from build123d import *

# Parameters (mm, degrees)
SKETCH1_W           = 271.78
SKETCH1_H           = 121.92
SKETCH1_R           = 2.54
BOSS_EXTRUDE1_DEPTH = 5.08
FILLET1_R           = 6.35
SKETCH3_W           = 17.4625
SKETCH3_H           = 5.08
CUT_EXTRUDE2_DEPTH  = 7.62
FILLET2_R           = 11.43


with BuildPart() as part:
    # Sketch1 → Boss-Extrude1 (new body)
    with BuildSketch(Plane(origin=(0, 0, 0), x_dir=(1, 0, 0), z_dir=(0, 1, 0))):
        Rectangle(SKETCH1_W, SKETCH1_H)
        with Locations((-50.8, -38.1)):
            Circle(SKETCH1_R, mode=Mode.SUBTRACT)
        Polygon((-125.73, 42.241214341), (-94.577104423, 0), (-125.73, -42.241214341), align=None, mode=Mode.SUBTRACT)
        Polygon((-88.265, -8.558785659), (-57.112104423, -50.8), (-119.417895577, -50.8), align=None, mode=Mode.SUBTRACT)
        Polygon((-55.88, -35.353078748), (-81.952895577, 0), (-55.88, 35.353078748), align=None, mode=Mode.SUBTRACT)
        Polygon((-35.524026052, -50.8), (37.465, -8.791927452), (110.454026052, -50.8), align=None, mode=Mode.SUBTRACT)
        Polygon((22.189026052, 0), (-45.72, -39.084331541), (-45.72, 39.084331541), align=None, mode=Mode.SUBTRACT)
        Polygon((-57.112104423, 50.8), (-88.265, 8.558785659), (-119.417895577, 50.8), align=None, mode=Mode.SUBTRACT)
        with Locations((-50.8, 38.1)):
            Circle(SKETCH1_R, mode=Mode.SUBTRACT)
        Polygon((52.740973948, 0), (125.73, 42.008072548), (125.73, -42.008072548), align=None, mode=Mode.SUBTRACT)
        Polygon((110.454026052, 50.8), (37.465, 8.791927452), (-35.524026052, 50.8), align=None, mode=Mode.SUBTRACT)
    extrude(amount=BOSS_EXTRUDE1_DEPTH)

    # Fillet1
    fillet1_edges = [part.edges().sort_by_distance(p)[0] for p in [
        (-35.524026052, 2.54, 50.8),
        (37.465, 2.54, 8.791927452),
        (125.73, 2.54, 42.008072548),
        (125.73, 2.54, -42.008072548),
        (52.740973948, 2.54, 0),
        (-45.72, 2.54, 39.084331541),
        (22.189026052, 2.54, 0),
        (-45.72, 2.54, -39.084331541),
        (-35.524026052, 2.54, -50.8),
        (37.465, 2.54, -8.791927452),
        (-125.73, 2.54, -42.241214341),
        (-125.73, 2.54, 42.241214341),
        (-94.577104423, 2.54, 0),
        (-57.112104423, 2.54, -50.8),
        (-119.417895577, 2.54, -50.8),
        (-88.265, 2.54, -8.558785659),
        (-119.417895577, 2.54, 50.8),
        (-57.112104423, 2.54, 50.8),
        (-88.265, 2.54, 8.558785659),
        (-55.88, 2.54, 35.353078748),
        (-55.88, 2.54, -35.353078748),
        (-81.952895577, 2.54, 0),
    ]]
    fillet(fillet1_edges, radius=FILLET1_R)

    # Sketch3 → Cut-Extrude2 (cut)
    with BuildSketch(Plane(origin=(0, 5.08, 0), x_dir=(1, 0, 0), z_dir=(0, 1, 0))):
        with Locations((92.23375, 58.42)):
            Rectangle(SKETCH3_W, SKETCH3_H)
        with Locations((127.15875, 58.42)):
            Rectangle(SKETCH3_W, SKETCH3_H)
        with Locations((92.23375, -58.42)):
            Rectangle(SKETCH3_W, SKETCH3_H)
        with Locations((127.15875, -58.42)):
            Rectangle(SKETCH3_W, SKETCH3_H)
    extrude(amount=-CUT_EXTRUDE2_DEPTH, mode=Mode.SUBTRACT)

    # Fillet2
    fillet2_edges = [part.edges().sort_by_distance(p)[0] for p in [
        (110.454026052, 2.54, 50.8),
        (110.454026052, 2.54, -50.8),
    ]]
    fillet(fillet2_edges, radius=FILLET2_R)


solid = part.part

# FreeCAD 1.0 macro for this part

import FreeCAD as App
import Part
import Sketcher

V = App.Vector
Q = App.Units.Quantity


def edges_at(feature, points):
    """Names of the edges that pass closest to the given points."""
    edges = feature.Shape.Edges
    near = lambda p: min(range(len(edges)), key=lambda i: edges[i].distToShape(Part.Vertex(*p))[0])
    return sorted({f"Edge{near(p) + 1}" for p in points})


def add_polygon(sketch, points):
    """Adds a closed chain of lines whose ends are joined by coincident constraints."""
    first, n = sketch.GeometryCount, len(points)
    for a, b in zip(points, points[1:] + points[:1]):
        sketch.addGeometry(Part.LineSegment(App.Vector(*a, 0), App.Vector(*b, 0)), False)
    for i in range(n):
        sketch.addConstraint(Sketcher.Constraint("Coincident", first + i, 2, first + (i + 1) % n, 1))

doc = App.newDocument("Part")
body = doc.addObject("PartDesign::Body", "Body")

sketch1 = doc.addObject("Sketcher::SketchObject", "Sketch")
body.addObject(sketch1)
sketch1.AttachmentSupport = (doc.XZ_Plane, [""])
sketch1.MapMode = "FlatFace"
add_polygon(sketch1, [(-135.9, -61), (-135.9, 61), (135.9, 61), (135.9, -61)])
add_polygon(sketch1, [(-119.4, 50.8), (-88.3, 8.6), (-57.1, 50.8)])
sketch1.addGeometry(Part.Circle(V(-50.8, 38.1, 0), V(0, 0, 1), 2.5), False)
add_polygon(sketch1, [(110.5, 50.8), (-35.5, 50.8), (37.5, 8.8)])
add_polygon(sketch1, [(-125.7, 42.2), (-125.7, -42.2), (-94.6, 0)])
add_polygon(sketch1, [(-55.9, -35.4), (-55.9, 35.4), (-82, 0)])
add_polygon(sketch1, [(-45.7, -39.1), (22.2, 0), (-45.7, 39.1)])
add_polygon(sketch1, [(-119.4, -50.8), (-57.1, -50.8), (-88.3, -8.6)])
sketch1.addGeometry(Part.Circle(V(-50.8, -38.1, 0), V(0, 0, 1), 2.5), False)
add_polygon(sketch1, [(125.7, 42), (52.7, 0), (125.7, -42)])
add_polygon(sketch1, [(-35.5, -50.8), (110.5, -50.8), (37.5, -8.8)])
sketch1.addConstraint([
    Sketcher.Constraint("Vertical", 0),
    Sketcher.Constraint("Horizontal", 1),
    Sketcher.Constraint("Vertical", 2),
    Sketcher.Constraint("Horizontal", 3),
    Sketcher.Constraint("Horizontal", 6),
    Sketcher.Constraint("Horizontal", 8),
    Sketcher.Constraint("Vertical", 11),
    Sketcher.Constraint("Vertical", 14),
    Sketcher.Constraint("Vertical", 19),
    Sketcher.Constraint("Horizontal", 20),
    Sketcher.Constraint("Vertical", 26),
    Sketcher.Constraint("Horizontal", 27),
    Sketcher.Constraint("Equal", 7, 23),
    Sketcher.Constraint("Symmetric", 0, 2, 2, 2, -1, 1),
    Sketcher.Constraint("Symmetric", 7, 3, 23, 3, -1),
    Sketcher.Constraint("Symmetric", 5, 2, 20, 2, -1),
    Sketcher.Constraint("Symmetric", 4, 2, 21, 2, -1),
    Sketcher.Constraint("Symmetric", 10, 2, 27, 2, -1),
    Sketcher.Constraint("Symmetric", 9, 2, 28, 2, -1),
    Sketcher.Constraint("PointOnObject", 12, 2, -1),
    Sketcher.Constraint("PointOnObject", 15, 2, -1),
    Sketcher.Constraint("PointOnObject", 17, 2, -1),
    Sketcher.Constraint("PointOnObject", 24, 2, -1),
    Sketcher.Constraint("Parallel", 5, 12),
    Sketcher.Constraint("Parallel", 4, 13),
    Sketcher.Constraint("Parallel", 12, 15),
    Sketcher.Constraint("Parallel", 13, 16),
    Sketcher.Constraint("Parallel", 10, 17),
    Sketcher.Constraint("Parallel", 9, 18),
    Sketcher.Constraint("Parallel", 16, 21),
    Sketcher.Constraint("Parallel", 15, 22),
    Sketcher.Constraint("Parallel", 17, 24),
    Sketcher.Constraint("Parallel", 18, 25),
    Sketcher.Constraint("Parallel", 25, 28),
    Sketcher.Constraint("Parallel", 24, 29),
    Sketcher.Constraint("Horizontal", 6, 2, 8, 2),
    Sketcher.Constraint("Equal", 5, 12),
    Sketcher.Constraint("Equal", 10, 24),
    Sketcher.Constraint("Diameter", 7, Q("0.2 in")),
    Sketcher.Constraint("DistanceX", 1, 1, 1, 2, Q("10.7 in")),
    Sketcher.Constraint("DistanceY", 0, 1, 0, 2, Q("4.8 in")),
    Sketcher.Constraint("DistanceX", 7, 3, -1, 1, Q("2 in")),
    Sketcher.Constraint("DistanceY", -1, 1, 5, 2, Q("2 in")),
    Sketcher.Constraint("DistanceY", 23, 3, 7, 3, Q("3 in")),
    Sketcher.Constraint("DistanceX", 14, 2, -1, 1, Q("2.2 in")),
    Sketcher.Constraint("DistanceX", 18, 2, -1, 1, Q("1.8 in")),
    Sketcher.Constraint("DistanceX", 3, 2, 11, 2, Q("0.4 in")),
    Sketcher.Constraint("DistanceX", 25, 2, 2, 2, Q("0.4 in")),
    Sketcher.Constraint("DistanceX", 4, 2, -1, 1, Q("3.475 in")),
    Sketcher.Constraint("DistanceX", -1, 1, 9, 2, Q("1.475 in")),
    Sketcher.Constraint("DistanceX", 6, 2, 6, 1, 62.305791),
    Sketcher.Constraint("DistanceY", 11, 2, 11, 1, 84.482429),
    Sketcher.Constraint("Distance", 17, 78.35318),
    Sketcher.Constraint("DistanceX", 8, 2, 8, 1, 145.978052),
    Sketcher.Constraint("DistanceY", 14, 1, 14, 2, 70.706157),
    Sketcher.Constraint("DistanceY", 19, 2, 19, 1, 78.168663),
])
pad1 = doc.addObject("PartDesign::Pad", "Pad")
body.addObject(pad1)
pad1.Profile = sketch1
pad1.Length = Q("0.2 in")
pad1.Reversed = True
doc.recompute()

fillet = doc.addObject("PartDesign::Fillet", "Fillet")
body.addObject(fillet)
fillet.Base = (pad1, edges_at(pad1, [
    (-35.524, 2.54, 50.8),
    (37.465, 2.54, 8.792),
    (125.73, 2.54, 42.008),
    (125.73, 2.54, -42.008),
    (52.741, 2.54, 0),
    (-45.72, 2.54, 39.084),
    (22.189, 2.54, 0),
    (-45.72, 2.54, -39.084),
    (-35.524, 2.54, -50.8),
    (37.465, 2.54, -8.792),
    (-125.73, 2.54, -42.241),
    (-125.73, 2.54, 42.241),
    (-94.577, 2.54, 0),
    (-57.112, 2.54, -50.8),
    (-119.418, 2.54, -50.8),
    (-88.265, 2.54, -8.559),
    (-119.418, 2.54, 50.8),
    (-57.112, 2.54, 50.8),
    (-88.265, 2.54, 8.559),
    (-55.88, 2.54, 35.353),
    (-55.88, 2.54, -35.353),
    (-81.953, 2.54, 0),
]))
fillet.Radius = Q("0.25 in")

sketch2 = doc.addObject("Sketcher::SketchObject", "Sketch001")
body.addObject(sketch2)
sketch2.AttachmentSupport = (doc.XZ_Plane, [""])
sketch2.MapMode = "FlatFace"
sketch2.AttachmentOffset = App.Placement(V(0, 0, -0.2 * 25.4), App.Rotation())
add_polygon(sketch2, [(84, -61), (84, -56), (101, -56), (101, -61)])
add_polygon(sketch2, [(118, -61), (118, -56), (136, -56), (136, -61)])
add_polygon(sketch2, [(84, 56), (84, 61), (101, 61), (101, 56)])
add_polygon(sketch2, [(118, 56), (118, 61), (136, 61), (136, 56)])
sketch2.addConstraint([
    Sketcher.Constraint("Vertical", 0),
    Sketcher.Constraint("Horizontal", 1),
    Sketcher.Constraint("Vertical", 2),
    Sketcher.Constraint("Horizontal", 3),
    Sketcher.Constraint("Vertical", 4),
    Sketcher.Constraint("Horizontal", 5),
    Sketcher.Constraint("Vertical", 6),
    Sketcher.Constraint("Horizontal", 7),
    Sketcher.Constraint("Vertical", 8),
    Sketcher.Constraint("Horizontal", 9),
    Sketcher.Constraint("Vertical", 10),
    Sketcher.Constraint("Horizontal", 11),
    Sketcher.Constraint("Vertical", 12),
    Sketcher.Constraint("Horizontal", 13),
    Sketcher.Constraint("Vertical", 14),
    Sketcher.Constraint("Horizontal", 15),
    Sketcher.Constraint("Symmetric", 3, 2, 8, 2, -1),
    Sketcher.Constraint("Symmetric", 1, 2, 10, 2, -1),
    Sketcher.Constraint("Symmetric", 7, 2, 12, 2, -1),
    Sketcher.Constraint("Symmetric", 5, 2, 14, 2, -1),
    Sketcher.Constraint("Horizontal", 1, 2, 4, 2),
    Sketcher.Constraint("Horizontal", 3, 2, 6, 2),
    Sketcher.Constraint("Equal", 3, 5),
    Sketcher.Constraint("DistanceY", 0, 1, 0, 2, Q("0.2 in")),
    Sketcher.Constraint("DistanceY", 0, 2, -1, 1, Q("2.2 in")),
    Sketcher.Constraint("DistanceX", 1, 1, 1, 2, Q("0.6875 in")),
    Sketcher.Constraint("DistanceX", -1, 1, 5, 2, Q("5.35 in")),
    Sketcher.Constraint("DistanceX", -1, 1, 1, 2, Q("3.975 in")),
])
pocket1 = doc.addObject("PartDesign::Pocket", "Pocket")
body.addObject(pocket1)
pocket1.Profile = sketch2
pocket1.Length = Q("0.3 in")
pocket1.Reversed = True
doc.recompute()

fillet2 = doc.addObject("PartDesign::Fillet", "Fillet001")
body.addObject(fillet2)
fillet2.Base = (pocket1, edges_at(pocket1, [(110.454, 2.54, 50.8), (110.454, 2.54, -50.8)]))
fillet2.Radius = Q("0.45 in")

doc.recompute()
